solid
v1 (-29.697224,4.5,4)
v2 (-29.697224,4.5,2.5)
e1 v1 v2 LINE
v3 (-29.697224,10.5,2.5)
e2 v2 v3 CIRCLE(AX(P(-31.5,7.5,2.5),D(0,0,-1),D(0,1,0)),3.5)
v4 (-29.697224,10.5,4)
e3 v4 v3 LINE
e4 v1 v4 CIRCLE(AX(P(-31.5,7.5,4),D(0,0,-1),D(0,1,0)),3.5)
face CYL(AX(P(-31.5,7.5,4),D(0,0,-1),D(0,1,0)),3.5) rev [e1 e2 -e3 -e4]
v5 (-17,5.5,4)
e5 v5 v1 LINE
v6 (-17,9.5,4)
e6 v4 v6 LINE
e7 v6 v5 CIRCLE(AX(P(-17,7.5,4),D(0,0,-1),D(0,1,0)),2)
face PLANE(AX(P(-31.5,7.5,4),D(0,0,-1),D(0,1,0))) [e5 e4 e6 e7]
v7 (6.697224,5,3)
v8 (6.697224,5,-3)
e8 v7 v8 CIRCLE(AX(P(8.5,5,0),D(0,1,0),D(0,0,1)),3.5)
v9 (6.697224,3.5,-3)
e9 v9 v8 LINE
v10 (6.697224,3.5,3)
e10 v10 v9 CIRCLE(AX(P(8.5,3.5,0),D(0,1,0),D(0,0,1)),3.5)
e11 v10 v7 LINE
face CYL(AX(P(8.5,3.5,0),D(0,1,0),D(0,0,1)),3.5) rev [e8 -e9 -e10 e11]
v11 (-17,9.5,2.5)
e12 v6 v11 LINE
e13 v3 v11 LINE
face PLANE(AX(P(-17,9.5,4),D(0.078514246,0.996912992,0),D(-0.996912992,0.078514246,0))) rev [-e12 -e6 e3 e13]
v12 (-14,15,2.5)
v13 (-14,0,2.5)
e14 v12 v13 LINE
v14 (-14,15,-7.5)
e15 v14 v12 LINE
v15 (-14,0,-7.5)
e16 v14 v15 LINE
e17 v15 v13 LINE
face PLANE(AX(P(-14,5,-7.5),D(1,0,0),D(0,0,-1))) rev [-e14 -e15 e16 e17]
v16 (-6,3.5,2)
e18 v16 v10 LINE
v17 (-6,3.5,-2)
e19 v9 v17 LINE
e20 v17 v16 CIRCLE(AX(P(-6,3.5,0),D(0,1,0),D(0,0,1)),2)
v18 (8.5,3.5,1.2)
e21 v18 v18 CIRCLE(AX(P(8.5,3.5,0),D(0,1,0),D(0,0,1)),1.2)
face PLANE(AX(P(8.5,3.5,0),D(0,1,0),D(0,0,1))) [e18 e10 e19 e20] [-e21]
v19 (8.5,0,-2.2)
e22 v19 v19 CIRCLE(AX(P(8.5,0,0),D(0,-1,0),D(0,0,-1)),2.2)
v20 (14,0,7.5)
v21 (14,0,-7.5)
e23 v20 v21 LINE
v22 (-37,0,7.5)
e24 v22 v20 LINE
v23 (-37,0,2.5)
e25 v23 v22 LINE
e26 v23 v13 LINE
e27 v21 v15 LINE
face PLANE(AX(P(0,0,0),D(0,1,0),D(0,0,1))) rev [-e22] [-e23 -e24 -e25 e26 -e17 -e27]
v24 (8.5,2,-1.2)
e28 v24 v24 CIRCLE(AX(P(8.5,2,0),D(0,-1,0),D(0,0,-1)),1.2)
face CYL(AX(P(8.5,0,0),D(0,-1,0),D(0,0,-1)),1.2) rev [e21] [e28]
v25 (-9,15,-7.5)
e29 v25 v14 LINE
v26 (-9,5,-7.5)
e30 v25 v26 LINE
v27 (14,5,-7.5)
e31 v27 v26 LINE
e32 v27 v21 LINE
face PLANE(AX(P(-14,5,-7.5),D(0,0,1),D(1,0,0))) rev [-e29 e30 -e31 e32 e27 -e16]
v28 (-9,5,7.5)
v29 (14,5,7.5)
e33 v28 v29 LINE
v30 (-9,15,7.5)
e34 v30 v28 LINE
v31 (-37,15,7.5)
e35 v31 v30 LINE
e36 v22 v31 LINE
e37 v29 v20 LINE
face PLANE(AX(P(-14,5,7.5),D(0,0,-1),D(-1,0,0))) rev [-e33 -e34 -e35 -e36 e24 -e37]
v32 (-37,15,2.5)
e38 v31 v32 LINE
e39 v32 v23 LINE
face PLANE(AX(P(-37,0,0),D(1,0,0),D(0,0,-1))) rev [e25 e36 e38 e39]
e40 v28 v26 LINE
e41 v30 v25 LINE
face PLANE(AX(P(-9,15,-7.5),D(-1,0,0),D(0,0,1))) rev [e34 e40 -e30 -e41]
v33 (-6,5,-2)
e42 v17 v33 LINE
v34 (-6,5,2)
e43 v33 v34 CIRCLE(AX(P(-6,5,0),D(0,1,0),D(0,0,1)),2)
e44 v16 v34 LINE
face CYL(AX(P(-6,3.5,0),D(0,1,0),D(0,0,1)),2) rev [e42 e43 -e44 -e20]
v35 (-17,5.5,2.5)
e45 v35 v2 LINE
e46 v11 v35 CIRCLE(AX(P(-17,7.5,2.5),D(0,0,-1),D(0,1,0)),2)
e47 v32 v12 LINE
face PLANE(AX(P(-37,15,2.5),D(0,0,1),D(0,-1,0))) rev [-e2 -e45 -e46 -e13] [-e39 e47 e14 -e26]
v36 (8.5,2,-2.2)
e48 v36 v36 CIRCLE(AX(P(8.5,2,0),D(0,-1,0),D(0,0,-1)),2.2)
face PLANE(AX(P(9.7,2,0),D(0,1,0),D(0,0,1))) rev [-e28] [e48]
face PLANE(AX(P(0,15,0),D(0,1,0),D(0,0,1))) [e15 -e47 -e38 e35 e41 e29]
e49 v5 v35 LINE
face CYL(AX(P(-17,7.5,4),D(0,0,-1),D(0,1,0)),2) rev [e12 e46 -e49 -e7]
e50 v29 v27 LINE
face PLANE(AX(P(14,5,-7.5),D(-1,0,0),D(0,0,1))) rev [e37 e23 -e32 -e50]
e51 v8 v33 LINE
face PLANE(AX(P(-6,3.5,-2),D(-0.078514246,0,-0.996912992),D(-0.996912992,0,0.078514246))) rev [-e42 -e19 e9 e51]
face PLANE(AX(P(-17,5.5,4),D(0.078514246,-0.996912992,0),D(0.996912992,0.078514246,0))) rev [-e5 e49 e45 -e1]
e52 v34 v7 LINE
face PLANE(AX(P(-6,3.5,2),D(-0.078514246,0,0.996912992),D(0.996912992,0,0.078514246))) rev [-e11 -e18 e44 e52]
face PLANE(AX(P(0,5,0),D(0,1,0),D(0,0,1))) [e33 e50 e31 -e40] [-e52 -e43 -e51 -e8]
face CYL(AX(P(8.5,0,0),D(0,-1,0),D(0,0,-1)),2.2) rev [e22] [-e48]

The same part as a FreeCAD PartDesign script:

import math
import FreeCAD as App
import Part
import Sketcher

V = App.Vector
Q = App.Units.Quantity

doc = App.newDocument("Part")
params = doc.addObject("Spreadsheet::Sheet", "Params")
for row, (alias, value) in enumerate([
    ("sketch1_width", "28 mm"),
    ("sketch1_height", "15 mm"),
    ("pad1_length", "5 mm"),
    ("sketch2_width", "5 mm"),
    ("sketch2_height", "15 mm"),
    ("pad2_length", "10 mm"),
    ("sketch3_width", "15 mm"),
    ("sketch3_height", "5 mm"),
    ("pad3_length", "23 mm"),
    ("sketch4_radius", "2 mm"),
    ("sketch4_radius2", "3.5 mm"),
    ("pocket1_length", "1.5 mm"),
    ("sketch5_diameter", "2.4 mm"),
    ("hole_diameter", "2.4 mm"),
    ("hole_cbore_diameter", "4.4 mm"),
    ("hole_cbore_depth", "2 mm"),
    ("sketch6_radius", "2 mm"),
    ("sketch6_radius2", "3.5 mm"),
    ("pocket2_length", "1.5 mm"),
], start=1):
    params.set(f"A{row}", alias)
    params.set(f"B{row}", "=" + value)
    params.setAlias(f"B{row}", alias)

body = doc.addObject("PartDesign::Body", "Body")

# Sketch on XZ plane
sketch1 = body.newObject("Sketcher::SketchObject", "Sketch")
sketch1.AttachmentSupport = (doc.getObject("XZ_Plane"), [""])
sketch1.MapMode = "FlatFace"
sketch1.addGeometry(Part.LineSegment(V(-14, -8, 0), V(-14, 8, 0)), False)
sketch1.addGeometry(Part.LineSegment(V(-14, 8, 0), V(14, 8, 0)), False)
sketch1.addGeometry(Part.LineSegment(V(14, 8, 0), V(14, -8, 0)), False)
sketch1.addGeometry(Part.LineSegment(V(14, -8, 0), V(-14, -8, 0)), False)
sketch1.addConstraint(Sketcher.Constraint("Coincident", 0, 2, 1, 1))
sketch1.addConstraint(Sketcher.Constraint("Coincident", 1, 2, 2, 1))
sketch1.addConstraint(Sketcher.Constraint("Coincident", 2, 2, 3, 1))
sketch1.addConstraint(Sketcher.Constraint("Coincident", 3, 2, 0, 1))
sketch1.addConstraint(Sketcher.Constraint("Vertical", 0))
sketch1.addConstraint(Sketcher.Constraint("Horizontal", 1))
sketch1.addConstraint(Sketcher.Constraint("Vertical", 2))
sketch1.addConstraint(Sketcher.Constraint("Horizontal", 3))
sketch1.addConstraint(Sketcher.Constraint("Symmetric", 0, 2, 2, 2, -1, 1))
sketch1.addConstraint(Sketcher.Constraint("DistanceX", 1, 1, 1, 2, Q("28 mm")))
sketch1.addConstraint(Sketcher.Constraint("DistanceY", 0, 1, 0, 2, Q("15 mm")))
sketch1.setExpression("Constraints[9]", "Params.sketch1_width")
sketch1.setExpression("Constraints[10]", "Params.sketch1_height")
pad1 = body.newObject("PartDesign::Pad", "Pad")
pad1.Profile = sketch1
pad1.setExpression("Length", "Params.pad1_length")
pad1.Reversed = True

# Sketch on XZ plane
sketch2 = body.newObject("Sketcher::SketchObject", "Sketch001")
sketch2.AttachmentSupport = (doc.getObject("XZ_Plane"), [""])
sketch2.MapMode = "FlatFace"
sketch2.AttachmentOffset = App.Placement(V(0, 0, -5), App.Rotation())
sketch2.addGeometry(Part.LineSegment(V(-14, -8, 0), V(-14, 8, 0)), False)
sketch2.addGeometry(Part.LineSegment(V(-14, 8, 0), V(-9, 8, 0)), False)
sketch2.addGeometry(Part.LineSegment(V(-9, 8, 0), V(-9, -8, 0)), False)
sketch2.addGeometry(Part.LineSegment(V(-9, -8, 0), V(-14, -8, 0)), False)
sketch2.addConstraint(Sketcher.Constraint("Coincident", 0, 2, 1, 1))
sketch2.addConstraint(Sketcher.Constraint("Coincident", 1, 2, 2, 1))
sketch2.addConstraint(Sketcher.Constraint("Coincident", 2, 2, 3, 1))
sketch2.addConstraint(Sketcher.Constraint("Coincident", 3, 2, 0, 1))
sketch2.addConstraint(Sketcher.Constraint("Vertical", 0))
sketch2.addConstraint(Sketcher.Constraint("Horizontal", 1))
sketch2.addConstraint(Sketcher.Constraint("Vertical", 2))
sketch2.addConstraint(Sketcher.Constraint("Horizontal", 3))
sketch2.addConstraint(Sketcher.Constraint("DistanceX", 1, 1, 1, 2, Q("5 mm")))
sketch2.addConstraint(Sketcher.Constraint("DistanceY", 0, 1, 0, 2, Q("15 mm")))
sketch2.addConstraint(Sketcher.Constraint("DistanceX", 0, 2, -1, 1, Q("14 mm")))
sketch2.addConstraint(Sketcher.Constraint("DistanceY", -1, 1, 0, 2, Q("7.5 mm")))
sketch2.setExpression("Constraints[8]", "Params.sketch2_width")
sketch2.setExpression("Constraints[9]", "Params.sketch2_height")
pad2 = body.newObject("PartDesign::Pad", "Pad001")
pad2.Profile = sketch2
pad2.setExpression("Length", "Params.pad2_length")
pad2.Reversed = True

# Sketch on YZ plane
sketch3 = body.newObject("Sketcher::SketchObject", "Sketch002")
sketch3.AttachmentSupport = (doc.getObject("YZ_Plane"), [""])
sketch3.MapMode = "FlatFace"
sketch3.AttachmentOffset = App.Placement(V(0, 0, -14), App.Rotation())
sketch3.addGeometry(Part.LineSegment(V(15, 2, 0), V(0, 2, 0)), False)
sketch3.addGeometry(Part.LineSegment(V(0, 2, 0), V(0, 8, 0)), False)
sketch3.addGeometry(Part.LineSegment(V(0, 8, 0), V(15, 8, 0)), False)
sketch3.addGeometry(Part.LineSegment(V(15, 8, 0), V(15, 2, 0)), False)
sketch3.addConstraint(Sketcher.Constraint("Coincident", 0, 2, 1, 1))
sketch3.addConstraint(Sketcher.Constraint("Coincident", 1, 2, 2, 1))
sketch3.addConstraint(Sketcher.Constraint("Coincident", 2, 2, 3, 1))
sketch3.addConstraint(Sketcher.Constraint("Coincident", 3, 2, 0, 1))
sketch3.addConstraint(Sketcher.Constraint("Horizontal", 0))
sketch3.addConstraint(Sketcher.Constraint("Vertical", 1))
sketch3.addConstraint(Sketcher.Constraint("Horizontal", 2))
sketch3.addConstraint(Sketcher.Constraint("Vertical", 3))
sketch3.addConstraint(Sketcher.Constraint("PointOnObject", 0, 2, -2))
sketch3.addConstraint(Sketcher.Constraint("DistanceX", 0, 2, 0, 1, Q("15 mm")))
sketch3.addConstraint(Sketcher.Constraint("DistanceY", 1, 1, 1, 2, Q("5 mm")))
sketch3.addConstraint(Sketcher.Constraint("DistanceY", -1, 1, 0, 2, Q("2.5 mm")))
sketch3.setExpression("Constraints[9]", "Params.sketch3_width")
sketch3.setExpression("Constraints[10]", "Params.sketch3_height")
pad3 = body.newObject("PartDesign::Pad", "Pad002")
pad3.Profile = sketch3
pad3.setExpression("Length", "Params.pad3_length")
pad3.Reversed = True

# Sketch on XZ plane
sketch4 = body.newObject("Sketcher::SketchObject", "Sketch003")
sketch4.AttachmentSupport = (doc.getObject("XZ_Plane"), [""])
sketch4.MapMode = "FlatFace"
sketch4.AttachmentOffset = App.Placement(V(0, 0, -5), App.Rotation())
sketch4.addGeometry(Part.LineSegment(V(6.7, -3, 0), V(-6, -2, 0)), False)
sketch4.addGeometry(Part.ArcOfCircle(Part.Circle(V(-6, 0, 0), V(0, 0, 1), 2), math.radians(90), math.radians(270)), False)
sketch4.addGeometry(Part.LineSegment(V(-6, 2, 0), V(6.7, 3, 0)), False)
sketch4.addGeometry(Part.ArcOfCircle(Part.Circle(V(8.5, 0, 0), V(0, 0, 1), 3.5), math.radians(-121), math.radians(121)), False)
sketch4.addConstraint(Sketcher.Constraint("Coincident", 0, 2, 1, 2))
sketch4.addConstraint(Sketcher.Constraint("Coincident", 1, 1, 2, 1))
sketch4.addConstraint(Sketcher.Constraint("Coincident", 2, 2, 3, 2))
sketch4.addConstraint(Sketcher.Constraint("Coincident", 3, 1, 0, 1))
sketch4.addConstraint(Sketcher.Constraint("Symmetric", 0, 2, 1, 1, -1))
sketch4.addConstraint(Sketcher.Constraint("Symmetric", 2, 2, 3, 1, -1))
sketch4.addConstraint(Sketcher.Constraint("Vertical", 1, 3, 0, 2))
sketch4.addConstraint(Sketcher.Constraint("Radius", 1, Q("2 mm")))
sketch4.addConstraint(Sketcher.Constraint("Radius", 3, Q("3.5 mm")))
sketch4.addConstraint(Sketcher.Constraint("DistanceX", 1, 3, -1, 1, Q("6 mm")))
sketch4.addConstraint(Sketcher.Constraint("DistanceY", -1, 1, 2, 2, Q("3 mm")))
sketch4.addConstraint(Sketcher.Constraint("DistanceX", -1, 1, 3, 3, Q("8.5 mm")))
sketch4.setExpression("Constraints[7]", "Params.sketch4_radius")
sketch4.setExpression("Constraints[8]", "Params.sketch4_radius2")
pocket1 = body.newObject("PartDesign::Pocket", "Pocket")
pocket1.Profile = sketch4
pocket1.setExpression("Length", "Params.pocket1_length")
pocket1.Reversed = True

# Sketch on XZ plane
sketch5 = body.newObject("Sketcher::SketchObject", "Sketch004")
sketch5.AttachmentSupport = (doc.getObject("XZ_Plane"), [""])
sketch5.MapMode = "FlatFace"
sketch5.addGeometry(Part.Circle(V(8.5, 0, 0), V(0, 0, 1), 1.2), False)
sketch5.addConstraint(Sketcher.Constraint("PointOnObject", 0, 3, -1))
sketch5.addConstraint(Sketcher.Constraint("Diameter", 0, Q("2.4 mm")))
sketch5.addConstraint(Sketcher.Constraint("DistanceX", -1, 1, 0, 3, Q("8.5 mm")))
sketch5.setExpression("Constraints[1]", "Params.sketch5_diameter")
doc.recompute()
hole = body.newObject("PartDesign::Hole", "Hole")
hole.Profile = sketch5
hole.ThreadType = "None"
hole.setExpression("Diameter", "Params.hole_diameter")
hole.DepthType = "ThroughAll"
hole.HoleCutType = "Counterbore"
hole.setExpression("HoleCutDiameter", "Params.hole_cbore_diameter")
hole.setExpression("HoleCutDepth", "Params.hole_cbore_depth")

# Sketch on XY plane
sketch6 = body.newObject("Sketcher::SketchObject", "Sketch005")
sketch6.AttachmentSupport = (doc.getObject("XY_Plane"), [""])
sketch6.MapMode = "FlatFace"
sketch6.AttachmentOffset = App.Placement(V(0, 0, 2.5), App.Rotation())
sketch6.addGeometry(Part.LineSegment(V(-29.7, 10.5, 0), V(-17, 9.5, 0)), False)
sketch6.addGeometry(Part.ArcOfCircle(Part.Circle(V(-17, 7.5, 0), V(0, 0, 1), 2), math.radians(-90), math.radians(90)), False)
sketch6.addGeometry(Part.LineSegment(V(-17, 5.5, 0), V(-29.7, 4.5, 0)), False)
sketch6.addGeometry(Part.ArcOfCircle(Part.Circle(V(-31.5, 7.5, 0), V(0, 0, 1), 3.5), math.radians(59), math.radians(301)), False)
sketch6.addConstraint(Sketcher.Constraint("Coincident", 0, 2, 1, 2))
sketch6.addConstraint(Sketcher.Constraint("Coincident", 1, 1, 2, 1))
sketch6.addConstraint(Sketcher.Constraint("Coincident", 2, 2, 3, 2))
sketch6.addConstraint(Sketcher.Constraint("Coincident", 3, 1, 0, 1))
sketch6.addConstraint(Sketcher.Constraint("Horizontal", 1, 3, 3, 3))
sketch6.addConstraint(Sketcher.Constraint("Vertical", 1, 3, 0, 2))
sketch6.addConstraint(Sketcher.Constraint("Vertical", 0, 2, 1, 1))
sketch6.addConstraint(Sketcher.Constraint("Vertical", 2, 2, 3, 1))
sketch6.addConstraint(Sketcher.Constraint("Radius", 1, Q("2 mm")))
sketch6.addConstraint(Sketcher.Constraint("Radius", 3, Q("3.5 mm")))
sketch6.addConstraint(Sketcher.Constraint("DistanceX", 1, 3, -1, 1, Q("17 mm")))
sketch6.addConstraint(Sketcher.Constraint("DistanceY", 2, 2, 3, 3, Q("3 mm")))
sketch6.addConstraint(Sketcher.Constraint("DistanceY", -1, 1, 1, 3, Q("7.5 mm")))
sketch6.addConstraint(Sketcher.Constraint("DistanceX", 3, 3, -1, 1, Q("31.5 mm")))
sketch6.setExpression("Constraints[8]", "Params.sketch6_radius")
sketch6.setExpression("Constraints[9]", "Params.sketch6_radius2")
pocket2 = body.newObject("PartDesign::Pocket", "Pocket001")
pocket2.Profile = sketch6
pocket2.setExpression("Length", "Params.pocket2_length")
pocket2.Reversed = True

doc.recompute()
